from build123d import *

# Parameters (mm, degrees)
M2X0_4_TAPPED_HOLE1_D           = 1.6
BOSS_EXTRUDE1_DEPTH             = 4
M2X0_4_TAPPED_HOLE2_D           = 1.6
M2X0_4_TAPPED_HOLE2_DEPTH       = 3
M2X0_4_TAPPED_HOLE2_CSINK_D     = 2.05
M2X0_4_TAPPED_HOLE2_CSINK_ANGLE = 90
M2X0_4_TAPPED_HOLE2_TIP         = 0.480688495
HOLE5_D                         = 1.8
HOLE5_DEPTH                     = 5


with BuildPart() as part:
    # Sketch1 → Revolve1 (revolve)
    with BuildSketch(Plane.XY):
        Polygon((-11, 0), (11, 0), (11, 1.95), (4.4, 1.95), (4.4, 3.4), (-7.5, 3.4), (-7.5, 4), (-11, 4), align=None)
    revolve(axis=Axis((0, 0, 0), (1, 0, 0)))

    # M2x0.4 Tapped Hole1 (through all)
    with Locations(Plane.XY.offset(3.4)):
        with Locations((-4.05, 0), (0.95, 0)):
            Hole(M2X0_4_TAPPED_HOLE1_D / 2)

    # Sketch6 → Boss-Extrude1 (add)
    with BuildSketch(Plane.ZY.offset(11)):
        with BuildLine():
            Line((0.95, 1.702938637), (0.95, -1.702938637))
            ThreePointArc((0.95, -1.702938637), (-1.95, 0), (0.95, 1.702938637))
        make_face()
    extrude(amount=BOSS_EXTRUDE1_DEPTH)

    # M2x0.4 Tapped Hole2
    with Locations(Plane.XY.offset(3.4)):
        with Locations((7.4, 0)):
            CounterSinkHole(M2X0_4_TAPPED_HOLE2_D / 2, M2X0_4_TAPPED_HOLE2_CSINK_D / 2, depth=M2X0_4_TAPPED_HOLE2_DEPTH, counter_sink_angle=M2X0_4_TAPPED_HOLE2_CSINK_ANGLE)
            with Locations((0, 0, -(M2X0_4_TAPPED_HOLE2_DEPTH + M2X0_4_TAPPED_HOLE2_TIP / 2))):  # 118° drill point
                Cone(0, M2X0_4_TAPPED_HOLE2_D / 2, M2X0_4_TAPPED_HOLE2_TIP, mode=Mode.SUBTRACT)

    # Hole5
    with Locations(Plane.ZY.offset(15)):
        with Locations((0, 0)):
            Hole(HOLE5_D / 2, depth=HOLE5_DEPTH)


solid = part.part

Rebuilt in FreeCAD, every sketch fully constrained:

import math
import FreeCAD as App
import Part
import Sketcher


def add_polygon(sketch, points):
    """Adds a closed chain of lines whose ends are joined by coincident constraints."""
    first, n = sketch.GeometryCount, len(points)
    for a, b in zip(points, points[1:] + points[:1]):
        sketch.addGeometry(Part.LineSegment(App.Vector(*a, 0), App.Vector(*b, 0)), False)
    for i in range(n):
        sketch.addConstraint(Sketcher.Constraint("Coincident", first + i, 2, first + (i + 1) % n, 1))

doc = App.newDocument("Part")
body = doc.addObject("PartDesign::Body", "Body")

sketch1 = doc.addObject("Sketcher::SketchObject", "Sketch")
body.addObject(sketch1)
sketch1.AttachmentSupport = (doc.XY_Plane, [""])
sketch1.MapMode = "FlatFace"
add_polygon(sketch1, [(-11, 0), (11, 0), (11, 1.95), (4.4, 1.95), (4.4, 3.4), (-7.5, 3.4), (-7.5, 4), (-11, 4)])
sketch1.addConstraint([
    Sketcher.Constraint("Horizontal", 0),
    Sketcher.Constraint("Vertical", 1),
    Sketcher.Constraint("Horizontal", 2),
    Sketcher.Constraint("Vertical", 3),
    Sketcher.Constraint("Horizontal", 4),
    Sketcher.Constraint("Vertical", 5),
    Sketcher.Constraint("Horizontal", 6),
    Sketcher.Constraint("Vertical", 7),
    Sketcher.Constraint("Symmetric", 0, 2, 7, 2, -1, 1),
    Sketcher.Constraint("DistanceX", 0, 1, 0, 2, 22.0),
    Sketcher.Constraint("DistanceY", 7, 2, 7, 1, 4.0),
    Sketcher.Constraint("DistanceX", 2, 2, 2, 1, 6.6),
    Sketcher.Constraint("DistanceX", 4, 2, 4, 1, 11.9),
    Sketcher.Constraint("DistanceY", 5, 1, 5, 2, 0.6),
    Sketcher.Constraint("DistanceY", 1, 1, 1, 2, 1.95),
])
revolution = doc.addObject("PartDesign::Revolution", "Revolution")
body.addObject(revolution)
revolution.Profile = sketch1
revolution.ReferenceAxis = (sketch1, ["H_Axis"])
revolution.Angle = 360

sketch2 = doc.addObject("Sketcher::SketchObject", "Sketch001")
body.addObject(sketch2)
sketch2.AttachmentSupport = (doc.XY_Plane, [""])
sketch2.MapMode = "FlatFace"
sketch2.AttachmentOffset = App.Placement(App.Vector(0, 0, 3.4), App.Rotation())
sketch2.addGeometry([
    Part.Circle(App.Vector(-4.05, 0, 0), App.Vector(0, 0, 1), 0.8),
    Part.Circle(App.Vector(0.95, 0, 0), App.Vector(0, 0, 1), 0.8),
], False)
sketch2.addConstraint([
    Sketcher.Constraint("Equal", 0, 1),
    Sketcher.Constraint("PointOnObject", 0, 3, -1),
    Sketcher.Constraint("PointOnObject", 1, 3, -1),
    Sketcher.Constraint("Diameter", 0, 1.6),
    Sketcher.Constraint("DistanceX", 0, 3, 1, 3, 5.0),
    Sketcher.Constraint("DistanceX", 0, 3, -1, 1, 4.05),
])
doc.recompute()
hole = doc.addObject("PartDesign::Hole", "Hole")
body.addObject(hole)
hole.Profile = sketch2
hole.ThreadType = "None"
hole.Diameter = 1.6
hole.DepthType = "ThroughAll"

sketch3 = doc.addObject("Sketcher::SketchObject", "Sketch002")
body.addObject(sketch3)
sketch3.AttachmentSupport = (doc.YZ_Plane, [""])
sketch3.MapMode = "FlatFace"
sketch3.AttachmentOffset = App.Placement(App.Vector(0, 0, -11), App.Rotation())
sketch3.addGeometry([
    Part.LineSegment(App.Vector(-1.702939, 0.95, 0), App.Vector(1.702939, 0.95, 0)),
    Part.ArcOfCircle(Part.Circle(App.Vector(0, 0, 0), App.Vector(0, 0, 1), 1.95), math.radians(150.844635), math.radians(389.155365)),
], False)
sketch3.addConstraint([
    Sketcher.Constraint("Coincident", 0, 1, 1, 1),
    Sketcher.Constraint("Coincident", 1, 2, 0, 2),
    Sketcher.Constraint("Horizontal", 0),
    Sketcher.Constraint("Coincident", 1, 3, -1, 1),
    Sketcher.Constraint("Radius", 1, 1.95),
    Sketcher.Constraint("DistanceY", -1, 1, 0, 1, 0.95),
])
pad1 = doc.addObject("PartDesign::Pad", "Pad")
body.addObject(pad1)
pad1.Profile = sketch3
pad1.Length = 4
pad1.Reversed = True

sketch4 = doc.addObject("Sketcher::SketchObject", "Sketch003")
body.addObject(sketch4)
sketch4.AttachmentSupport = (doc.XY_Plane, [""])
sketch4.MapMode = "FlatFace"
sketch4.AttachmentOffset = App.Placement(App.Vector(0, 0, 3.4), App.Rotation())
sketch4.addGeometry(Part.Circle(App.Vector(7.4, 0, 0), App.Vector(0, 0, 1), 0.8), False)
sketch4.addConstraint([
    Sketcher.Constraint("PointOnObject", 0, 3, -1),
    Sketcher.Constraint("Diameter", 0, 1.6),
    Sketcher.Constraint("DistanceX", -1, 1, 0, 3, 7.4),
])
doc.recompute()
hole2 = doc.addObject("PartDesign::Hole", "Hole001")
body.addObject(hole2)
hole2.Profile = sketch4
hole2.ThreadType = "None"
hole2.Diameter = 1.6
hole2.DepthType = "Dimension"
hole2.Depth = 3
hole2.DrillPoint = "Angled"
hole2.DrillPointAngle = 118
hole2.HoleCutType = "Countersink"
hole2.HoleCutDiameter = 2.05
hole2.HoleCutCountersinkAngle = 90

sketch5 = doc.addObject("Sketcher::SketchObject", "Sketch004")
body.addObject(sketch5)
sketch5.AttachmentSupport = (doc.YZ_Plane, [""])
sketch5.MapMode = "FlatFace"
sketch5.AttachmentOffset = App.Placement(App.Vector(0, 0, -15), App.Rotation())
sketch5.addGeometry(Part.Circle(App.Vector(0, 0, 0), App.Vector(0, 0, 1), 0.9), False)
sketch5.addConstraint([
    Sketcher.Constraint("Coincident", 0, 3, -1, 1),
    Sketcher.Constraint("Diameter", 0, 1.8),
])
doc.recompute()
hole3 = doc.addObject("PartDesign::Hole", "Hole002")
body.addObject(hole3)
hole3.Profile = sketch5
hole3.ThreadType = "None"
hole3.Diameter = 1.8
hole3.DepthType = "Dimension"
hole3.Depth = 5
hole3.DrillPoint = "Flat"
hole3.Reversed = True

doc.recompute()
